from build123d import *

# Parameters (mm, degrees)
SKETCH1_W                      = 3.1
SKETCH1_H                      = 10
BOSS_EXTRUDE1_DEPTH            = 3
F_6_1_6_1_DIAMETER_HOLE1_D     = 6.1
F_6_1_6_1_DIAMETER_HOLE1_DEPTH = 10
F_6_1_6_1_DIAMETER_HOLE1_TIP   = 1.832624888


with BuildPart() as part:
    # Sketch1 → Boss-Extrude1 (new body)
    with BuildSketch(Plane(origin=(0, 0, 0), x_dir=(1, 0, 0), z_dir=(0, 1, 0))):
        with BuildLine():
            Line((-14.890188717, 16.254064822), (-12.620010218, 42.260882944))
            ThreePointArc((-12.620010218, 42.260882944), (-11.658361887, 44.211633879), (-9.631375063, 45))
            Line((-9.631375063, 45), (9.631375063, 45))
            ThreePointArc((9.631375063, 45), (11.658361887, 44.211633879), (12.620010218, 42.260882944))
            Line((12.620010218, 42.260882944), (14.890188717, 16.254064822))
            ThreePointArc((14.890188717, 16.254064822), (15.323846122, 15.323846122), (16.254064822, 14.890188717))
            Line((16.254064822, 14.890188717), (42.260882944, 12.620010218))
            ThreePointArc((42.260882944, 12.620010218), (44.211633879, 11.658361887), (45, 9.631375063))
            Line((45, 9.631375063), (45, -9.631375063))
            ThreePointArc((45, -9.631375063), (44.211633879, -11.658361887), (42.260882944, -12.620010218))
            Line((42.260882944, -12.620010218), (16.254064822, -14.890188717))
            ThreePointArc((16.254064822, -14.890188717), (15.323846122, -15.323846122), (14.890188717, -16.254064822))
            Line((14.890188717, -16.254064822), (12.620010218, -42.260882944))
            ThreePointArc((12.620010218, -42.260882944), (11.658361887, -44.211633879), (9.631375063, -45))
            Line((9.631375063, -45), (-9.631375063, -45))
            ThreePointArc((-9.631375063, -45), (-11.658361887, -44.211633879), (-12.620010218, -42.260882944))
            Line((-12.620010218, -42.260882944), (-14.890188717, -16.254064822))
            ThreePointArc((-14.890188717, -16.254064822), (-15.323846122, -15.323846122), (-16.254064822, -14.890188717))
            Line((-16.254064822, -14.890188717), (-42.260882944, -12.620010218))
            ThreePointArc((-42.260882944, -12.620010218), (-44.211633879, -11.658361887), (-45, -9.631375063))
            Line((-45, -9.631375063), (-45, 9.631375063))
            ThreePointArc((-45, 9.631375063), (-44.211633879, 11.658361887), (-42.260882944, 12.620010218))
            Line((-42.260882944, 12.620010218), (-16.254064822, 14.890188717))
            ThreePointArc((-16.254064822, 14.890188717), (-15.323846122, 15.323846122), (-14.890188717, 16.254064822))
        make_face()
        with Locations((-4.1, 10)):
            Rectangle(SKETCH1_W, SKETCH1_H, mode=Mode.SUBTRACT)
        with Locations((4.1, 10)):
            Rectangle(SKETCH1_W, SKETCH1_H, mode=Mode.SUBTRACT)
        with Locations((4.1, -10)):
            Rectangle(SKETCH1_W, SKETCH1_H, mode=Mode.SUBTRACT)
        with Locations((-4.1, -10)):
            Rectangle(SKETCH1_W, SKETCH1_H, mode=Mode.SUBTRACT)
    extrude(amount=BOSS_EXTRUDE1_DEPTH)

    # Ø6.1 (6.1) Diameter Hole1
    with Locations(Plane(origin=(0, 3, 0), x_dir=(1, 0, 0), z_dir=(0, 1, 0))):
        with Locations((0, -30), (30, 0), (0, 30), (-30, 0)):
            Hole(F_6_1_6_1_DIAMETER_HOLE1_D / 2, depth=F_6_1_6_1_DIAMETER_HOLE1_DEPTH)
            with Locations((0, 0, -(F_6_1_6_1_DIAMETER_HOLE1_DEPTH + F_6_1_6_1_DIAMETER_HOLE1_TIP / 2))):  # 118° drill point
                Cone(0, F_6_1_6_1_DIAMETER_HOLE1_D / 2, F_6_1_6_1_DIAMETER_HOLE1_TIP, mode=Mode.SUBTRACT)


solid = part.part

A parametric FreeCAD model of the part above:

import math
import FreeCAD as App
import Part
import Sketcher
from FreeCAD import Vector

doc = App.newDocument("Part")
body = doc.addObject("PartDesign::Body", "Body")

# Sketch on XZ plane
sketch1 = body.newObject("Sketcher::SketchObject", "Sketch")
sketch1.AttachmentSupport = (doc.getObject("XZ_Plane"), [""])
sketch1.MapMode = "FlatFace"
sketch1.addGeometry(Part.LineSegment(Vector(-12.6, -42.3, 0), Vector(-14.9, -16.3, 0)), False)
sketch1.addGeometry(Part.ArcOfCircle(Part.Circle(Vector(-16.4, -16.4, 0), Vector(0, 0, 1), 1.5), math.radians(5), math.radians(85)), False)
sketch1.addGeometry(Part.LineSegment(Vector(-16.3, -14.9, 0), Vector(-42.3, -12.6, 0)), False)
sketch1.addGeometry(Part.ArcOfCircle(Part.Circle(Vector(-42, -9.6, 0), Vector(0, 0, 1), 3), math.radians(180), math.radians(265)), False)
sketch1.addGeometry(Part.LineSegment(Vector(-45, -9.6, 0), Vector(-45, 9.6, 0)), False)
sketch1.addGeometry(Part.ArcOfCircle(Part.Circle(Vector(-42, 9.6, 0), Vector(0, 0, 1), 3), math.radians(95), math.radians(180)), False)
sketch1.addGeometry(Part.LineSegment(Vector(-42.3, 12.6, 0), Vector(-16.3, 14.9, 0)), False)
sketch1.addGeometry(Part.ArcOfCircle(Part.Circle(Vector(-16.4, 16.4, 0), Vector(0, 0, 1), 1.5), math.radians(-85), math.radians(-5)), False)
sketch1.addGeometry(Part.LineSegment(Vector(-14.9, 16.3, 0), Vector(-12.6, 42.3, 0)), False)
sketch1.addGeometry(Part.ArcOfCircle(Part.Circle(Vector(-9.6, 42, 0), Vector(0, 0, 1), 3), math.radians(90), math.radians(175)), False)
sketch1.addGeometry(Part.LineSegment(Vector(-9.6, 45, 0), Vector(9.6, 45, 0)), False)
sketch1.addGeometry(Part.ArcOfCircle(Part.Circle(Vector(9.6, 42, 0), Vector(0, 0, 1), 3), math.radians(5), math.radians(90)), False)
sketch1.addGeometry(Part.LineSegment(Vector(12.6, 42.3, 0), Vector(14.9, 16.3, 0)), False)
sketch1.addGeometry(Part.ArcOfCircle(Part.Circle(Vector(16.4, 16.4, 0), Vector(0, 0, 1), 1.5), math.radians(-175), math.radians(-95)), False)
sketch1.addGeometry(Part.LineSegment(Vector(16.3, 14.9, 0), Vector(42.3, 12.6, 0)), False)
sketch1.addGeometry(Part.ArcOfCircle(Part.Circle(Vector(42, 9.6, 0), Vector(0, 0, 1), 3), math.radians(0), math.radians(85)), False)
sketch1.addGeometry(Part.LineSegment(Vector(45, 9.6, 0), Vector(45, -9.6, 0)), False)
sketch1.addGeometry(Part.ArcOfCircle(Part.Circle(Vector(42, -9.6, 0), Vector(0, 0, 1), 3), math.radians(-85), math.radians(0)), False)
sketch1.addGeometry(Part.LineSegment(Vector(42.3, -12.6, 0), Vector(16.3, -14.9, 0)), False)
sketch1.addGeometry(Part.ArcOfCircle(Part.Circle(Vector(16.4, -16.4, 0), Vector(0, 0, 1), 1.5), math.radians(95), math.radians(175)), False)
sketch1.addGeometry(Part.LineSegment(Vector(14.9, -16.3, 0), Vector(12.6, -42.3, 0)), False)
sketch1.addGeometry(Part.ArcOfCircle(Part.Circle(Vector(9.6, -42, 0), Vector(0, 0, 1), 3), math.radians(-90), math.radians(-5)), False)
sketch1.addGeometry(Part.LineSegment(Vector(9.6, -45, 0), Vector(-9.6, -45, 0)), False)
sketch1.addGeometry(Part.ArcOfCircle(Part.Circle(Vector(-9.6, -42, 0), Vector(0, 0, 1), 3), math.radians(-175), math.radians(-90)), False)
sketch1.addGeometry(Part.LineSegment(Vector(2.5, 15, 0), Vector(2.5, 5, 0)), False)
sketch1.addGeometry(Part.LineSegment(Vector(2.5, 5, 0), Vector(5.7, 5, 0)), False)
sketch1.addGeometry(Part.LineSegment(Vector(5.7, 5, 0), Vector(5.7, 15, 0)), False)
sketch1.addGeometry(Part.LineSegment(Vector(5.7, 15, 0), Vector(2.5, 15, 0)), False)
sketch1.addGeometry(Part.LineSegment(Vector(-5.7, 15, 0), Vector(-5.7, 5, 0)), False)
sketch1.addGeometry(Part.LineSegment(Vector(-5.7, 5, 0), Vector(-2.5, 5, 0)), False)
sketch1.addGeometry(Part.LineSegment(Vector(-2.5, 5, 0), Vector(-2.5, 15, 0)), False)
sketch1.addGeometry(Part.LineSegment(Vector(-2.5, 15, 0), Vector(-5.7, 15, 0)), False)
sketch1.addGeometry(Part.LineSegment(Vector(2.5, -5, 0), Vector(2.5, -15, 0)), False)
sketch1.addGeometry(Part.LineSegment(Vector(2.5, -15, 0), Vector(5.7, -15, 0)), False)
sketch1.addGeometry(Part.LineSegment(Vector(5.7, -15, 0), Vector(5.7, -5, 0)), False)
sketch1.addGeometry(Part.LineSegment(Vector(5.7, -5, 0), Vector(2.5, -5, 0)), False)
sketch1.addGeometry(Part.LineSegment(Vector(-5.7, -5, 0), Vector(-5.7, -15, 0)), False)
sketch1.addGeometry(Part.LineSegment(Vector(-5.7, -15, 0), Vector(-2.5, -15, 0)), False)
sketch1.addGeometry(Part.LineSegment(Vector(-2.5, -15, 0), Vector(-2.5, -5, 0)), False)
sketch1.addGeometry(Part.LineSegment(Vector(-2.5, -5, 0), Vector(-5.7, -5, 0)), False)
sketch1.addConstraint(Sketcher.Constraint("Tangent", 0, 2, 1, 1))
sketch1.addConstraint(Sketcher.Constraint("Tangent", 1, 2, 2, 1))
sketch1.addConstraint(Sketcher.Constraint("Tangent", 2, 2, 3, 2))
sketch1.addConstraint(Sketcher.Constraint("Tangent", 3, 1, 4, 1))
sketch1.addConstraint(Sketcher.Constraint("Tangent", 4, 2, 5, 2))
sketch1.addConstraint(Sketcher.Constraint("Tangent", 5, 1, 6, 1))
sketch1.addConstraint(Sketcher.Constraint("Tangent", 6, 2, 7, 1))
sketch1.addConstraint(Sketcher.Constraint("Tangent", 7, 2, 8, 1))
sketch1.addConstraint(Sketcher.Constraint("Tangent", 8, 2, 9, 2))
sketch1.addConstraint(Sketcher.Constraint("Tangent", 9, 1, 10, 1))
sketch1.addConstraint(Sketcher.Constraint("Tangent", 10, 2, 11, 2))
sketch1.addConstraint(Sketcher.Constraint("Tangent", 11, 1, 12, 1))
sketch1.addConstraint(Sketcher.Constraint("Tangent", 12, 2, 13, 1))
sketch1.addConstraint(Sketcher.Constraint("Tangent", 13, 2, 14, 1))
sketch1.addConstraint(Sketcher.Constraint("Tangent", 14, 2, 15, 2))
sketch1.addConstraint(Sketcher.Constraint("Tangent", 15, 1, 16, 1))
sketch1.addConstraint(Sketcher.Constraint("Tangent", 16, 2, 17, 2))
sketch1.addConstraint(Sketcher.Constraint("Tangent", 17, 1, 18, 1))
sketch1.addConstraint(Sketcher.Constraint("Tangent", 18, 2, 19, 1))
sketch1.addConstraint(Sketcher.Constraint("Tangent", 19, 2, 20, 1))
sketch1.addConstraint(Sketcher.Constraint("Tangent", 20, 2, 21, 2))
sketch1.addConstraint(Sketcher.Constraint("Tangent", 21, 1, 22, 1))
sketch1.addConstraint(Sketcher.Constraint("Tangent", 22, 2, 23, 2))
sketch1.addConstraint(Sketcher.Constraint("Tangent", 23, 1, 0, 1))
sketch1.addConstraint(Sketcher.Constraint("Coincident", 24, 2, 25, 1))
sketch1.addConstraint(Sketcher.Constraint("Coincident", 25, 2, 26, 1))
sketch1.addConstraint(Sketcher.Constraint("Coincident", 26, 2, 27, 1))
sketch1.addConstraint(Sketcher.Constraint("Coincident", 27, 2, 24, 1))
sketch1.addConstraint(Sketcher.Constraint("Coincident", 28, 2, 29, 1))
sketch1.addConstraint(Sketcher.Constraint("Coincident", 29, 2, 30, 1))
sketch1.addConstraint(Sketcher.Constraint("Coincident", 30, 2, 31, 1))
sketch1.addConstraint(Sketcher.Constraint("Coincident", 31, 2, 28, 1))
sketch1.addConstraint(Sketcher.Constraint("Coincident", 32, 2, 33, 1))
sketch1.addConstraint(Sketcher.Constraint("Coincident", 33, 2, 34, 1))
sketch1.addConstraint(Sketcher.Constraint("Coincident", 34, 2, 35, 1))
sketch1.addConstraint(Sketcher.Constraint("Coincident", 35, 2, 32, 1))
sketch1.addConstraint(Sketcher.Constraint("Coincident", 36, 2, 37, 1))
sketch1.addConstraint(Sketcher.Constraint("Coincident", 37, 2, 38, 1))
sketch1.addConstraint(Sketcher.Constraint("Coincident", 38, 2, 39, 1))
sketch1.addConstraint(Sketcher.Constraint("Coincident", 39, 2, 36, 1))
sketch1.addConstraint(Sketcher.Constraint("Vertical", 4))
sketch1.addConstraint(Sketcher.Constraint("Horizontal", 10))
sketch1.addConstraint(Sketcher.Constraint("Vertical", 16))
sketch1.addConstraint(Sketcher.Constraint("Horizontal", 22))
sketch1.addConstraint(Sketcher.Constraint("Vertical", 24))
sketch1.addConstraint(Sketcher.Constraint("Horizontal", 25))
sketch1.addConstraint(Sketcher.Constraint("Vertical", 26))
sketch1.addConstraint(Sketcher.Constraint("Horizontal", 27))
sketch1.addConstraint(Sketcher.Constraint("Vertical", 28))
sketch1.addConstraint(Sketcher.Constraint("Horizontal", 29))
sketch1.addConstraint(Sketcher.Constraint("Vertical", 30))
sketch1.addConstraint(Sketcher.Constraint("Horizontal", 31))
sketch1.addConstraint(Sketcher.Constraint("Vertical", 32))
sketch1.addConstraint(Sketcher.Constraint("Horizontal", 33))
sketch1.addConstraint(Sketcher.Constraint("Vertical", 34))
sketch1.addConstraint(Sketcher.Constraint("Horizontal", 35))
sketch1.addConstraint(Sketcher.Constraint("Vertical", 36))
sketch1.addConstraint(Sketcher.Constraint("Horizontal", 37))
sketch1.addConstraint(Sketcher.Constraint("Vertical", 38))
sketch1.addConstraint(Sketcher.Constraint("Horizontal", 39))
sketch1.addConstraint(Sketcher.Constraint("Equal", 3, 5))
sketch1.addConstraint(Sketcher.Constraint("Equal", 1, 7))
sketch1.addConstraint(Sketcher.Constraint("Equal", 5, 9))
sketch1.addConstraint(Sketcher.Constraint("Equal", 9, 11))
sketch1.addConstraint(Sketcher.Constraint("Equal", 7, 13))
sketch1.addConstraint(Sketcher.Constraint("Equal", 11, 15))
sketch1.addConstraint(Sketcher.Constraint("Equal", 15, 17))
sketch1.addConstraint(Sketcher.Constraint("Equal", 13, 19))
sketch1.addConstraint(Sketcher.Constraint("Equal", 17, 21))
sketch1.addConstraint(Sketcher.Constraint("Equal", 21, 23))
sketch1.addConstraint(Sketcher.Constraint("Symmetric", 1, 3, 13, 3, -1, 1))
sketch1.addConstraint(Sketcher.Constraint("Symmetric", 3, 3, 15, 3, -1, 1))
sketch1.addConstraint(Sketcher.Constraint("Symmetric", 7, 3, 19, 3, -1, 1))
sketch1.addConstraint(Sketcher.Constraint("Symmetric", 9, 3, 21, 3, -1, 1))
sketch1.addConstraint(Sketcher.Constraint("Symmetric", 30, 2, 32, 2, -1, 1))
sketch1.addConstraint(Sketcher.Constraint("Symmetric", 28, 2, 34, 2, -1, 1))
sketch1.addConstraint(Sketcher.Constraint("Symmetric", 26, 2, 36, 2, -1, 1))
sketch1.addConstraint(Sketcher.Constraint("Symmetric", 24, 2, 38, 2, -1, 1))
sketch1.addConstraint(Sketcher.Constraint("Symmetric", 7, 3, 13, 3, -2))
sketch1.addConstraint(Sketcher.Constraint("Symmetric", 25, 2, 28, 2, -2))
sketch1.addConstraint(Sketcher.Constraint("Symmetric", 27, 2, 30, 2, -2))
sketch1.addConstraint(Sketcher.Constraint("Perpendicular", 0, 6))
sketch1.addConstraint(Sketcher.Constraint("Perpendicular", 2, 8))
sketch1.addConstraint(Sketcher.Constraint("Perpendicular", 6, 12))
sketch1.addConstraint(Sketcher.Constraint("Perpendicular", 12, 18))
sketch1.addConstraint(Sketcher.Constraint("Horizontal", 5, 3, 15, 3))
sketch1.addConstraint(Sketcher.Constraint("Equal", 22, 4))
sketch1.addConstraint(Sketcher.Constraint("Equal", 0, 2))
sketch1.addConstraint(Sketcher.Constraint("Radius", 3, 3.0))
sketch1.addConstraint(Sketcher.Constraint("Radius", 1, 1.5))
sketch1.addConstraint(Sketcher.Constraint("DistanceY", 24, 2, 24, 1, 10.0))
sketch1.addConstraint(Sketcher.Constraint("DistanceX", 25, 1, 25, 2, 3.1))
sketch1.addConstraint(Sketcher.Constraint("DistanceX", 3, 3, -1, 1, 42.0))
sketch1.addConstraint(Sketcher.Constraint("DistanceY", -1, 1, 24, 2, 5.0))
sketch1.addConstraint(Sketcher.Constraint("DistanceX", 28, 2, 24, 2, 8.2))
sketch1.addConstraint(Sketcher.Constraint("DistanceX", 10, 1, 10, 2, 19.26275))
sketch1.addConstraint(Sketcher.Constraint("DistanceX", 0, 2, -1, 1, 14.890189))
pad1 = body.newObject("PartDesign::Pad", "Pad")
pad1.Profile = sketch1
pad1.Length = 3
pad1.Reversed = True

# Sketch on XZ plane
sketch2 = body.newObject("Sketcher::SketchObject", "Sketch001")
sketch2.AttachmentSupport = (doc.getObject("XZ_Plane"), [""])
sketch2.MapMode = "FlatFace"
sketch2.AttachmentOffset = App.Placement(Vector(0, 0, -3), App.Rotation())
sketch2.addGeometry(Part.Circle(Vector(0, 30, 0), Vector(0, 0, 1), 3), False)
sketch2.addGeometry(Part.Circle(Vector(30, 0, 0), Vector(0, 0, 1), 3), False)
sketch2.addGeometry(Part.Circle(Vector(0, -30, 0), Vector(0, 0, 1), 3), False)
sketch2.addGeometry(Part.Circle(Vector(-30, 0, 0), Vector(0, 0, 1), 3), False)
sketch2.addConstraint(Sketcher.Constraint("Equal", 0, 1))
sketch2.addConstraint(Sketcher.Constraint("Equal", 1, 2))
sketch2.addConstraint(Sketcher.Constraint("Equal", 2, 3))
sketch2.addConstraint(Sketcher.Constraint("Symmetric", 0, 3, 2, 3, -1, 1))
sketch2.addConstraint(Sketcher.Constraint("Symmetric", 1, 3, 3, 3, -1, 1))
sketch2.addConstraint(Sketcher.Constraint("PointOnObject", 0, 3, -2))
sketch2.addConstraint(Sketcher.Constraint("PointOnObject", 1, 3, -1))
sketch2.addConstraint(Sketcher.Constraint("Diameter", 0, 6.1))
sketch2.addConstraint(Sketcher.Constraint("DistanceY", -1, 1, 0, 3, 30.0))
sketch2.addConstraint(Sketcher.Constraint("DistanceX", -1, 1, 1, 3, 30.0))
doc.recompute()
hole = body.newObject("PartDesign::Hole", "Hole")
hole.Profile = sketch2
hole.ThreadType = "None"
hole.Diameter = 6.1
hole.DepthType = "Dimension"
hole.Depth = 10
hole.DrillPoint = "Angled"
hole.DrillPointAngle = 118
hole.Reversed = True

doc.recompute()
